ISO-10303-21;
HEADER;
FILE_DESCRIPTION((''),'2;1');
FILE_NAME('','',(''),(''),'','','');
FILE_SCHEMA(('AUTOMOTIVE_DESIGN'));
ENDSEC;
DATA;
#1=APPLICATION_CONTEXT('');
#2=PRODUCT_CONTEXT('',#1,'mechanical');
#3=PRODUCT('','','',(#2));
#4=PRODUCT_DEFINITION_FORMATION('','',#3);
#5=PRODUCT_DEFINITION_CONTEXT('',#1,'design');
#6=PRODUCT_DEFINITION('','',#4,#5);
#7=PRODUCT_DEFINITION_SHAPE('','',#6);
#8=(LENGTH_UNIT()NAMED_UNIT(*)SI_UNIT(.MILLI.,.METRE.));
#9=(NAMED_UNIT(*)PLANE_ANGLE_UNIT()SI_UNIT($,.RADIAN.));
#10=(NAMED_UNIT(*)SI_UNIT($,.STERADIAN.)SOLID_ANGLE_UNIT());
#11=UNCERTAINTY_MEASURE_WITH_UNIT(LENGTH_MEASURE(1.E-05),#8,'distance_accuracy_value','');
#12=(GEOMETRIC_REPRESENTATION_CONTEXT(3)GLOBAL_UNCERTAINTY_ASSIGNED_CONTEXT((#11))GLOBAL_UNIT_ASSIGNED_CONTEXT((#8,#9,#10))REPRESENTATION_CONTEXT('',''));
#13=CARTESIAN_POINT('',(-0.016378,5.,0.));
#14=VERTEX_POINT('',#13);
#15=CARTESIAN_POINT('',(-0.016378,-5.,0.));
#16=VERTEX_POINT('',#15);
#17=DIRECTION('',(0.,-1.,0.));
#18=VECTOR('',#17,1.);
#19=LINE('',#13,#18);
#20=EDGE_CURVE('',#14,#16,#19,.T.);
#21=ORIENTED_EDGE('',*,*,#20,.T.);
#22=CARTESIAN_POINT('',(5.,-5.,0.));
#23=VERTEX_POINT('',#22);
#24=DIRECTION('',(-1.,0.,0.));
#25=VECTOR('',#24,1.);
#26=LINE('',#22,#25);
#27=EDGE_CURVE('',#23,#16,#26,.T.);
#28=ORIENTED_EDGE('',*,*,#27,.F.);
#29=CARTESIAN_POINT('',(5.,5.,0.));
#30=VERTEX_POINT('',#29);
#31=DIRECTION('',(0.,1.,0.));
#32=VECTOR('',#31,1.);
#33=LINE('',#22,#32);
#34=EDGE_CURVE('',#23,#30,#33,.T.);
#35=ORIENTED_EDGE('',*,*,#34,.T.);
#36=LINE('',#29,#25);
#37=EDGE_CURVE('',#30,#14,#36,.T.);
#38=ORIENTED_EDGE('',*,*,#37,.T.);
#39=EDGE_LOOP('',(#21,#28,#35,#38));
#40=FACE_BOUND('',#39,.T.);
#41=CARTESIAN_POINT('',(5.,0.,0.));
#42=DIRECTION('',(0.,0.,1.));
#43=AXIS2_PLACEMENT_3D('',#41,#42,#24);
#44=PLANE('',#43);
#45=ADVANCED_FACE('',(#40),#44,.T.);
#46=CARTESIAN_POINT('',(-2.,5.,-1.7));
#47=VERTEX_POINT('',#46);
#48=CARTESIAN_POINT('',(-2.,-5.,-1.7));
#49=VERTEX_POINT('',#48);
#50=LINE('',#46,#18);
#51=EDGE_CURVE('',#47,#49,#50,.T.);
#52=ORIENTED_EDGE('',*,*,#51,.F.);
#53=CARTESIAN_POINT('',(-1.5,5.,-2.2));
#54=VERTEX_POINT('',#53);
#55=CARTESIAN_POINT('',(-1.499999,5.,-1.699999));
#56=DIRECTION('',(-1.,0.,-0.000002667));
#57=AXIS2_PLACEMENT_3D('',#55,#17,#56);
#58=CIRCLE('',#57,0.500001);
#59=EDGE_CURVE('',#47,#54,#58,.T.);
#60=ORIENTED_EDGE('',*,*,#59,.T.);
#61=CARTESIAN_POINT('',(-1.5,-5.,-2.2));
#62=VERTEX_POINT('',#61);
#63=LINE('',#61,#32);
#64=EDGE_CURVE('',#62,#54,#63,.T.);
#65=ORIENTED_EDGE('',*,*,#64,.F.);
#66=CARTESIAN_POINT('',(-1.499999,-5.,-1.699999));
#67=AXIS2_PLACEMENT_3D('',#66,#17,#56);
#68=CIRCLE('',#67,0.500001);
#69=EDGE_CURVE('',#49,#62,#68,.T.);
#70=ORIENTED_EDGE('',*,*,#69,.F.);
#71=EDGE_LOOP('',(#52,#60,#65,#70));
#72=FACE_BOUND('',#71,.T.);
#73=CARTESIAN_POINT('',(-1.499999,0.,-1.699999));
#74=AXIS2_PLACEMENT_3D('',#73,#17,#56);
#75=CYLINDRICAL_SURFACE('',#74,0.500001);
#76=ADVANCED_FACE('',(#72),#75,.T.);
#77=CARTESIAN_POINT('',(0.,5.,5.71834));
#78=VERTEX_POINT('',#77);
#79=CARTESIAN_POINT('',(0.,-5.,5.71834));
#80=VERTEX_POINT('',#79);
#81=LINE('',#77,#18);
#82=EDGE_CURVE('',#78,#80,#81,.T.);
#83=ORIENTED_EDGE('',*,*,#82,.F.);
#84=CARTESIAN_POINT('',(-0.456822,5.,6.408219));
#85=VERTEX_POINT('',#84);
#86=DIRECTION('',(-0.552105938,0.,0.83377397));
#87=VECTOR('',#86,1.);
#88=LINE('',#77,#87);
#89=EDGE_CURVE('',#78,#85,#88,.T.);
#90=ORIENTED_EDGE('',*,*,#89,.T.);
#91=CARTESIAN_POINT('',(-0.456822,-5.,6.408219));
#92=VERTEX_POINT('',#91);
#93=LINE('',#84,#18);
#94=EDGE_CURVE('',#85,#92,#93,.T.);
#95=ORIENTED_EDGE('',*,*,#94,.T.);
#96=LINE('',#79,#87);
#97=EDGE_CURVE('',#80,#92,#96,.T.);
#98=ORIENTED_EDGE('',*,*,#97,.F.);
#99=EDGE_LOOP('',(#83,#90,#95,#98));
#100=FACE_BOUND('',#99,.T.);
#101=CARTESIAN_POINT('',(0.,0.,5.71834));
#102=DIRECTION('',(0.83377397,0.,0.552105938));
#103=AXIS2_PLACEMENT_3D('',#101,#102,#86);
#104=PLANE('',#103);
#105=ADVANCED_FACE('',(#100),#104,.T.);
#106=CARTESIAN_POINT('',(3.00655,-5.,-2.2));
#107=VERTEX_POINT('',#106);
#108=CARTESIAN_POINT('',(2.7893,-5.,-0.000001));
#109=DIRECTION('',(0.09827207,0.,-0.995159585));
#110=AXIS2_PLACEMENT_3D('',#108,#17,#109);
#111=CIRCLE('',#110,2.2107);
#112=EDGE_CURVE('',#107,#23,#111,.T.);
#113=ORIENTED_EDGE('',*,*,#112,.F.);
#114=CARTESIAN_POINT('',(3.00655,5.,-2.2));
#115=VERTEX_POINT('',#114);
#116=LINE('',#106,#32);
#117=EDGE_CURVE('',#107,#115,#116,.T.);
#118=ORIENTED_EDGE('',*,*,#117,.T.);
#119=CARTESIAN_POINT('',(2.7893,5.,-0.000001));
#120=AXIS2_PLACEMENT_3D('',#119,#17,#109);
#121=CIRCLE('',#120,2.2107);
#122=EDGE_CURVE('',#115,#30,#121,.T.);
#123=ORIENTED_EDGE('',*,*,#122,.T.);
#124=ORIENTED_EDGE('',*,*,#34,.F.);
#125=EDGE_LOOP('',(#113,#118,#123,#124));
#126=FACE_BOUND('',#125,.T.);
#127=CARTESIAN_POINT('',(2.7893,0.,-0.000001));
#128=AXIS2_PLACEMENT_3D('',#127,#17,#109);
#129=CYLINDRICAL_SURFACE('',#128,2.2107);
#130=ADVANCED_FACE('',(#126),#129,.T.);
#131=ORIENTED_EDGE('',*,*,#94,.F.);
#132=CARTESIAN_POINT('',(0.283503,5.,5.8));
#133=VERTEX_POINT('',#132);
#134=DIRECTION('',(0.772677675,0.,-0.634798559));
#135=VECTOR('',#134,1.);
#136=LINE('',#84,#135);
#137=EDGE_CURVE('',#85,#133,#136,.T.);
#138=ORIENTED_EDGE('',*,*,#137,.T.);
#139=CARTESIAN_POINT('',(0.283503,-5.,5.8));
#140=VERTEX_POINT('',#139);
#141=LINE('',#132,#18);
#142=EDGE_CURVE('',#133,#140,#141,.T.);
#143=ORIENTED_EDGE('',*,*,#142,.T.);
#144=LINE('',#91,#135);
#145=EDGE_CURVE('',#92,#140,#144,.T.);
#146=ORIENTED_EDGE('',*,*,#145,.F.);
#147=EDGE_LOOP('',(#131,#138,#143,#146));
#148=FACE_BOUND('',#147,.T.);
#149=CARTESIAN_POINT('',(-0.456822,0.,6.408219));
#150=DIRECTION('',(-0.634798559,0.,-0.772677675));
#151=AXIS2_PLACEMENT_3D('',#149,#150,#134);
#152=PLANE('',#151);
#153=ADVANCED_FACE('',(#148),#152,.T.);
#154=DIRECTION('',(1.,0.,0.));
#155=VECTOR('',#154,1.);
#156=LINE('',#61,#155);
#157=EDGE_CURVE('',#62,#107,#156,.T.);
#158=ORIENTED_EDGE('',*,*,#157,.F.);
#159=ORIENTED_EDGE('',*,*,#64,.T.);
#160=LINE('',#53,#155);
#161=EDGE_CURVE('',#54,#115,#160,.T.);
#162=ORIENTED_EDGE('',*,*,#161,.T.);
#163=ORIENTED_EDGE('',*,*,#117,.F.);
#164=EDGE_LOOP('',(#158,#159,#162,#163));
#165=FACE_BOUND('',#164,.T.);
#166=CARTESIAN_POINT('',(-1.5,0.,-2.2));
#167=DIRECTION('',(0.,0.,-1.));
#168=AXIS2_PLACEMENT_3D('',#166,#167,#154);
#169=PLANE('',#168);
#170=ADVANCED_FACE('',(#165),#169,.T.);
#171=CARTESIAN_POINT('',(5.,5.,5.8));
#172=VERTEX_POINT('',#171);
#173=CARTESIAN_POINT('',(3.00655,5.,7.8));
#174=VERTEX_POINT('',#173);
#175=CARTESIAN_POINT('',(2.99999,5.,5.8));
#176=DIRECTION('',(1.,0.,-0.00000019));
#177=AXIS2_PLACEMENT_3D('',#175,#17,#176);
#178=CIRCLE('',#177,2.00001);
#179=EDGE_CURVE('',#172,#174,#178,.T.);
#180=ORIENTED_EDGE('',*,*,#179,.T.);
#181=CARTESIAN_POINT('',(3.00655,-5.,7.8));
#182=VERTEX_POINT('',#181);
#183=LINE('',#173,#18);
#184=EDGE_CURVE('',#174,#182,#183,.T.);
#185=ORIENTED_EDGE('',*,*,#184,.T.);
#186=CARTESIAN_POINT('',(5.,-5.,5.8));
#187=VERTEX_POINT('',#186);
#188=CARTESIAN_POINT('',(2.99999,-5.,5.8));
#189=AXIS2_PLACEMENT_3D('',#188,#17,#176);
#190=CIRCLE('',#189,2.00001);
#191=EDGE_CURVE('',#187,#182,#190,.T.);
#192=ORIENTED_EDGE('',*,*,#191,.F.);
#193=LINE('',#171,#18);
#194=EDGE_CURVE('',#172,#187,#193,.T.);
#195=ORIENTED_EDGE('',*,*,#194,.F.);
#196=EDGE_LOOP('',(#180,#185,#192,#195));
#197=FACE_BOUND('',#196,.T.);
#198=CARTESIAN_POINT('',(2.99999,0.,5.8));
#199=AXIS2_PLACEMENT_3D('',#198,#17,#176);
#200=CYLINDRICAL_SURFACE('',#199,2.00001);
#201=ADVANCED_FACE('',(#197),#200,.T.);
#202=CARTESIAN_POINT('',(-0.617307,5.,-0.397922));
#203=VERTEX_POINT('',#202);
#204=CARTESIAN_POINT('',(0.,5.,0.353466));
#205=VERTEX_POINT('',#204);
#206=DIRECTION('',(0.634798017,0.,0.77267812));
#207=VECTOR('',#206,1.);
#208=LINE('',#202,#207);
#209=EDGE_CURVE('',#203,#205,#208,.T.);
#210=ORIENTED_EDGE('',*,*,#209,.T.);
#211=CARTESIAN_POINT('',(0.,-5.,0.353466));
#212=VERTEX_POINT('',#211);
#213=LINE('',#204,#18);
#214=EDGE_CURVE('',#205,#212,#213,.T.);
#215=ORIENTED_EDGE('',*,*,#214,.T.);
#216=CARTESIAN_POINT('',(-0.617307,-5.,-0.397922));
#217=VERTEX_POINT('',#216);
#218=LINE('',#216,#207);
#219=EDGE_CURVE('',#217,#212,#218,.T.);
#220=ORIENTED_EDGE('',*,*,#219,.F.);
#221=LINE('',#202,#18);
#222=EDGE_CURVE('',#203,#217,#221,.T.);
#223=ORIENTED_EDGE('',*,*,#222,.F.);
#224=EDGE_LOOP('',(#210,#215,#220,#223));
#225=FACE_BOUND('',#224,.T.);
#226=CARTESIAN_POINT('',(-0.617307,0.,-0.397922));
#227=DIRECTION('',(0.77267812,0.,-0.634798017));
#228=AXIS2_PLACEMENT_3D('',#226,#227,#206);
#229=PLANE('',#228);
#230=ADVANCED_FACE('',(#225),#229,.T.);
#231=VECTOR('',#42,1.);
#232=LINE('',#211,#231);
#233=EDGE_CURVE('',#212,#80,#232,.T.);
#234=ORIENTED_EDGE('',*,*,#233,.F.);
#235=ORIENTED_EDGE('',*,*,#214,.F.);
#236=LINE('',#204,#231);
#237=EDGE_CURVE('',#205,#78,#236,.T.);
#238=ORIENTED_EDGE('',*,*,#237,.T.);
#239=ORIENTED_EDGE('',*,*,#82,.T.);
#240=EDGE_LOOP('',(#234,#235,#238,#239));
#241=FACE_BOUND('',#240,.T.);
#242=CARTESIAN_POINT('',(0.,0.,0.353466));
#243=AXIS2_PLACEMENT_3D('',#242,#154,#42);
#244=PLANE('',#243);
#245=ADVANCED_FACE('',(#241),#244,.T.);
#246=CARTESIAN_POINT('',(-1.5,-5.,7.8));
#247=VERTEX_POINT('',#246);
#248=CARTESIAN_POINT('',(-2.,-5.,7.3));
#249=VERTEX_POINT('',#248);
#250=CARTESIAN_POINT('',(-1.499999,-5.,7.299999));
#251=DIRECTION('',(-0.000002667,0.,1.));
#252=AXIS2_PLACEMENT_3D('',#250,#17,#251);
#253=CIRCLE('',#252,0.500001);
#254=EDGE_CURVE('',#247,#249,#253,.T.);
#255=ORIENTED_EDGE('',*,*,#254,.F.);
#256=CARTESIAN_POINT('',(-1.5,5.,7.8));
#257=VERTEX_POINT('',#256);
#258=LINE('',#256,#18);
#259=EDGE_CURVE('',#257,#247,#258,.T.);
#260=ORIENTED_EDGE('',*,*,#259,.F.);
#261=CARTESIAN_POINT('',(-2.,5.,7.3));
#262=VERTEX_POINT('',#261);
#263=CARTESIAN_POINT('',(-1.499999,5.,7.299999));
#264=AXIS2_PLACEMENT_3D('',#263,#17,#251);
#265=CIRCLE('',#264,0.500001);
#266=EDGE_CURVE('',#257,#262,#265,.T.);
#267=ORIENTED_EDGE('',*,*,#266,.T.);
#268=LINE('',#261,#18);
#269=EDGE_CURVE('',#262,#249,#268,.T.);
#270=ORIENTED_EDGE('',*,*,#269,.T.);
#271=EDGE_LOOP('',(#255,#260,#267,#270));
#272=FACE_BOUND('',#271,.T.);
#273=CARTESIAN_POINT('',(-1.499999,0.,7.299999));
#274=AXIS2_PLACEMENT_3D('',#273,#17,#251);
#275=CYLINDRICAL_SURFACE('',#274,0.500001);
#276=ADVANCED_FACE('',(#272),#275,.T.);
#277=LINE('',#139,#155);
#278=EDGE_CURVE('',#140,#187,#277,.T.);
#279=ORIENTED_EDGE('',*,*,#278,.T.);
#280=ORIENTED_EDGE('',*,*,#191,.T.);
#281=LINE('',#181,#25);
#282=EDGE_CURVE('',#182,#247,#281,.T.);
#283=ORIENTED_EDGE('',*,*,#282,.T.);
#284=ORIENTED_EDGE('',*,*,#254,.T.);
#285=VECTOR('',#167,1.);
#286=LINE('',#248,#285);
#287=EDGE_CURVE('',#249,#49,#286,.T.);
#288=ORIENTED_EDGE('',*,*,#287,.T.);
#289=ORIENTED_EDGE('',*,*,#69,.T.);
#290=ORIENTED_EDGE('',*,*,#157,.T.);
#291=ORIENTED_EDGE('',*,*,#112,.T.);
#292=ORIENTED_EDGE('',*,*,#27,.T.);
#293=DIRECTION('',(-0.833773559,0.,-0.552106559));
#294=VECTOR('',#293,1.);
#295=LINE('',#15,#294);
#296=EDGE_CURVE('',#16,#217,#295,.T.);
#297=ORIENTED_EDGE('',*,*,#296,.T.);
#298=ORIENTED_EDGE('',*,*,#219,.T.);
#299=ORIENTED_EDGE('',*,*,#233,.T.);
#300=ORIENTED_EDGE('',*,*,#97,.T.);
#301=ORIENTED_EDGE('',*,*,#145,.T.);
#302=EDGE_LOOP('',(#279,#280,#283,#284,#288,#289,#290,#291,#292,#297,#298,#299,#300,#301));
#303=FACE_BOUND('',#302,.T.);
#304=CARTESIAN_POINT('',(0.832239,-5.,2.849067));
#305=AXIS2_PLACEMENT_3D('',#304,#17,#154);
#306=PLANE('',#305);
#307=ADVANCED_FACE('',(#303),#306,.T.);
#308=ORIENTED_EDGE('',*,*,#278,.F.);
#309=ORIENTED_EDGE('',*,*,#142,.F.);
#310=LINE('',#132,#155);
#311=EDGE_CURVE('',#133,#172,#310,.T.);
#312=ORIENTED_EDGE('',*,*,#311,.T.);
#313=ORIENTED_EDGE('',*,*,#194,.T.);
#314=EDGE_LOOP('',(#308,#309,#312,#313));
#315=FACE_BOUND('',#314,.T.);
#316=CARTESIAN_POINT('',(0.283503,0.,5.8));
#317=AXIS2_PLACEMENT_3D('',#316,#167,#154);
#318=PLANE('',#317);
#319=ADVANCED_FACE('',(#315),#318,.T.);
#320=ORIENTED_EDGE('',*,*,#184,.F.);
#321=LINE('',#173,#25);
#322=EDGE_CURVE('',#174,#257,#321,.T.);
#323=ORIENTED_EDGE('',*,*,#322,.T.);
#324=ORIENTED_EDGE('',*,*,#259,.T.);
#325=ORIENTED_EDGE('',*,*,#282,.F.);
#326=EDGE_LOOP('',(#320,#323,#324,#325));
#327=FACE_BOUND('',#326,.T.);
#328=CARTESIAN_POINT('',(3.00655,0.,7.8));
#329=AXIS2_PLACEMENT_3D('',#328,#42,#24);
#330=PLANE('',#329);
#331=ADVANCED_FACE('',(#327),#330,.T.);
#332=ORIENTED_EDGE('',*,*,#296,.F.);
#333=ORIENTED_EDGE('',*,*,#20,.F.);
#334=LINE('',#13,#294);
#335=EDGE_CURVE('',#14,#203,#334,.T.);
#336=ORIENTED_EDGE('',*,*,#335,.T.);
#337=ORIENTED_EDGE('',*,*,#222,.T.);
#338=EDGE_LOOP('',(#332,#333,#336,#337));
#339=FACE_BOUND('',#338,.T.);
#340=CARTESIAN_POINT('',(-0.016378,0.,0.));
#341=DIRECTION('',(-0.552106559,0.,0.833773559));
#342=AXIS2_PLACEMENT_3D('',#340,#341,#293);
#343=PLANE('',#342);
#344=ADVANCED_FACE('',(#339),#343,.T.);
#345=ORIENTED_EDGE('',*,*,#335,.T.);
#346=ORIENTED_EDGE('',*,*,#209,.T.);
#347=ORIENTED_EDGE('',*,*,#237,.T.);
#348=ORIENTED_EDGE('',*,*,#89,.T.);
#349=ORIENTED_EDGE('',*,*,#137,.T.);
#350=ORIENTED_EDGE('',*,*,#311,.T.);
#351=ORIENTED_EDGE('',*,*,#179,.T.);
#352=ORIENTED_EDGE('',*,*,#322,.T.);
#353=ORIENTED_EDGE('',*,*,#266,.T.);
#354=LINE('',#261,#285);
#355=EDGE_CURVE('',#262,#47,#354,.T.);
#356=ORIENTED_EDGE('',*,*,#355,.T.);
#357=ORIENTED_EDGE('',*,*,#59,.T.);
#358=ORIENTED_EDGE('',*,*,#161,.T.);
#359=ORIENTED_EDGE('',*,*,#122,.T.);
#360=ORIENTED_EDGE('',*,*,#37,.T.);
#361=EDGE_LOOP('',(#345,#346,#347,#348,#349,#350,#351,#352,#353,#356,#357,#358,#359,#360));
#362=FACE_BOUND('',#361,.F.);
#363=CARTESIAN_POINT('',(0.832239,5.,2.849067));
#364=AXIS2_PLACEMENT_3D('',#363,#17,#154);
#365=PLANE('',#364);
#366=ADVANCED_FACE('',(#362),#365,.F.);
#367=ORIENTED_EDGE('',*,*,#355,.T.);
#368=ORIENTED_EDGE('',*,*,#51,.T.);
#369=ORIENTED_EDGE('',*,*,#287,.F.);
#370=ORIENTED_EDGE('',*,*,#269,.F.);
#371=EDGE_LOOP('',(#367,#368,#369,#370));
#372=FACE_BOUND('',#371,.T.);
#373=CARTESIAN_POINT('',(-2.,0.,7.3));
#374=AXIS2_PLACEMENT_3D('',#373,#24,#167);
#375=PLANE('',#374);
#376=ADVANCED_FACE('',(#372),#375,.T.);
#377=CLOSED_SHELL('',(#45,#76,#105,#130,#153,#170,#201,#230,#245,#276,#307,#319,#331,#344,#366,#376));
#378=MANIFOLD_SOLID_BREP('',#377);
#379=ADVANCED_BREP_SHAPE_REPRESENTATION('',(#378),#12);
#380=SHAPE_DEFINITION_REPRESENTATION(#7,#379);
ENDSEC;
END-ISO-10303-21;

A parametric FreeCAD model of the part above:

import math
import FreeCAD as App
import Part
import Sketcher

V = App.Vector

doc = App.newDocument("Part")
params = doc.addObject("Spreadsheet::Sheet", "Params")
for row, (alias, value) in enumerate([
    ("sketch1_radius", "0.500001 mm"),
    ("sketch1_height", "9 mm"),
    ("sketch1_height2", "2 mm"),
    ("pad1_length", "10 mm"),
], start=1):
    params.set(f"A{row}", alias)
    params.set(f"B{row}", "=" + value)
    params.setAlias(f"B{row}", alias)

body = doc.addObject("PartDesign::Body", "Body")

sketch1 = body.newObject("Sketcher::SketchObject", "Sketch")
sketch1.AttachmentSupport = (doc.getObject("XZ_Plane"), [""])
sketch1.MapMode = "FlatFace"
sketch1.addGeometry(Part.LineSegment(V(5, 0, 0), V(0, 0, 0)), False)
sketch1.addGeometry(Part.LineSegment(V(0, 0, 0), V(-0.6, -0.4, 0)), False)
sketch1.addGeometry(Part.LineSegment(V(-0.6, -0.4, 0), V(0, 0.4, 0)), False)
sketch1.addGeometry(Part.LineSegment(V(0, 0.4, 0), V(0, 5.7, 0)), False)
sketch1.addGeometry(Part.LineSegment(V(0, 5.7, 0), V(-0.5, 6.4, 0)), False)
sketch1.addGeometry(Part.LineSegment(V(-0.5, 6.4, 0), V(0.3, 5.8, 0)), False)
sketch1.addGeometry(Part.LineSegment(V(0.3, 5.8, 0), V(5, 5.8, 0)), False)
sketch1.addGeometry(Part.ArcOfCircle(Part.Circle(V(3, 5.8, 0), V(0, 0, 1), 2), math.radians(0), math.radians(90)), False)
sketch1.addGeometry(Part.LineSegment(V(3, 7.8, 0), V(-1.5, 7.8, 0)), False)
sketch1.addGeometry(Part.ArcOfCircle(Part.Circle(V(-1.5, 7.3, 0), V(0, 0, 1), 0.5), math.radians(90), math.radians(180)), False)
sketch1.addGeometry(Part.LineSegment(V(-2, 7.3, 0), V(-2, -1.7, 0)), False)
sketch1.addGeometry(Part.ArcOfCircle(Part.Circle(V(-1.5, -1.7, 0), V(0, 0, 1), 0.5), math.radians(-180), math.radians(-90)), False)
sketch1.addGeometry(Part.LineSegment(V(-1.5, -2.2, 0), V(3, -2.2, 0)), False)
sketch1.addGeometry(Part.ArcOfCircle(Part.Circle(V(2.8, 0, 0), V(0, 0, 1), 2.2), math.radians(-84), math.radians(0)), False)
sketch1.addConstraint(Sketcher.Constraint("Coincident", 0, 2, 1, 1))
sketch1.addConstraint(Sketcher.Constraint("Coincident", 1, 2, 2, 1))
sketch1.addConstraint(Sketcher.Constraint("Coincident", 2, 2, 3, 1))
sketch1.addConstraint(Sketcher.Constraint("Coincident", 3, 2, 4, 1))
sketch1.addConstraint(Sketcher.Constraint("Coincident", 4, 2, 5, 1))
sketch1.addConstraint(Sketcher.Constraint("Coincident", 5, 2, 6, 1))
sketch1.addConstraint(Sketcher.Constraint("Coincident", 6, 2, 7, 1))
sketch1.addConstraint(Sketcher.Constraint("Coincident", 7, 2, 8, 1))
sketch1.addConstraint(Sketcher.Constraint("Coincident", 8, 2, 9, 1))
sketch1.addConstraint(Sketcher.Constraint("Coincident", 9, 2, 10, 1))
sketch1.addConstraint(Sketcher.Constraint("Coincident", 10, 2, 11, 1))
sketch1.addConstraint(Sketcher.Constraint("Coincident", 11, 2, 12, 1))
sketch1.addConstraint(Sketcher.Constraint("Coincident", 12, 2, 13, 1))
sketch1.addConstraint(Sketcher.Constraint("Coincident", 13, 2, 0, 1))
sketch1.addConstraint(Sketcher.Constraint("Horizontal", 0))
sketch1.addConstraint(Sketcher.Constraint("Vertical", 3))
sketch1.addConstraint(Sketcher.Constraint("Horizontal", 6))
sketch1.addConstraint(Sketcher.Constraint("Horizontal", 8))
sketch1.addConstraint(Sketcher.Constraint("Vertical", 10))
sketch1.addConstraint(Sketcher.Constraint("Horizontal", 12))
sketch1.addConstraint(Sketcher.Constraint("Equal", 9, 11))
sketch1.addConstraint(Sketcher.Constraint("PointOnObject", 13, 3, -1))
sketch1.addConstraint(Sketcher.Constraint("PointOnObject", 0, 2, -1))
sketch1.addConstraint(Sketcher.Constraint("PointOnObject", 2, 2, -2))
sketch1.addConstraint(Sketcher.Constraint("Perpendicular", 1, 4))
sketch1.addConstraint(Sketcher.Constraint("Perpendicular", 2, 5))
sketch1.addConstraint(Sketcher.Constraint("Horizontal", 7, 3, 5, 2))
sketch1.addConstraint(Sketcher.Constraint("Horizontal", 11, 3, 10, 2))
sketch1.addConstraint(Sketcher.Constraint("Vertical", 11, 3, 8, 2))
sketch1.addConstraint(Sketcher.Constraint("Vertical", 8, 2, 11, 2))
sketch1.addConstraint(Sketcher.Constraint("Vertical", 7, 2, 12, 2))
sketch1.addConstraint(Sketcher.Constraint("Vertical", 6, 2, 13, 2))
sketch1.addConstraint(Sketcher.Constraint("Radius", 9, 0.500001))
sketch1.addConstraint(Sketcher.Constraint("DistanceY", 10, 2, 10, 1, 9.0))
sketch1.addConstraint(Sketcher.Constraint("DistanceX", -1, 1, 6, 2, 5.0))
sketch1.addConstraint(Sketcher.Constraint("DistanceX", 9, 2, -1, 1, 2.0))
sketch1.addConstraint(Sketcher.Constraint("DistanceY", 7, 3, 7, 2, 2.0))
sketch1.addConstraint(Sketcher.Constraint("DistanceY", -1, 1, 7, 3, 5.8))
sketch1.addConstraint(Sketcher.Constraint("DistanceY", 11, 3, -1, 1, 1.699999))
sketch1.addConstraint(Sketcher.Constraint("Radius", 13, 2.2107))
sketch1.addConstraint(Sketcher.Constraint("DistanceX", 9, 3, 5, 2, 1.783502))
sketch1.addConstraint(Sketcher.Constraint("Distance", 5, 0.958129))
sketch1.addConstraint(Sketcher.Constraint("DistanceX", 0, 2, 0, 1, 5.016378))
sketch1.addConstraint(Sketcher.Constraint("DistanceY", 3, 1, 3, 2, 5.364874))
sketch1.addConstraint(Sketcher.Constraint("DistanceY", -1, 1, 3, 2, 5.71834))
sketch1.addConstraint(Sketcher.Constraint("DistanceY", -1, 1, 4, 2, 6.408219))
sketch1.setExpression("Constraints[32]", "Params.sketch1_radius")
sketch1.setExpression("Constraints[33]", "Params.sketch1_height")
sketch1.setExpression("Constraints[36]", "Params.sketch1_height2")
pad1 = body.newObject("PartDesign::Pad", "Pad")
pad1.Profile = sketch1
pad1.setExpression("Length", "Params.pad1_length")
pad1.Midplane = True

doc.recompute()
